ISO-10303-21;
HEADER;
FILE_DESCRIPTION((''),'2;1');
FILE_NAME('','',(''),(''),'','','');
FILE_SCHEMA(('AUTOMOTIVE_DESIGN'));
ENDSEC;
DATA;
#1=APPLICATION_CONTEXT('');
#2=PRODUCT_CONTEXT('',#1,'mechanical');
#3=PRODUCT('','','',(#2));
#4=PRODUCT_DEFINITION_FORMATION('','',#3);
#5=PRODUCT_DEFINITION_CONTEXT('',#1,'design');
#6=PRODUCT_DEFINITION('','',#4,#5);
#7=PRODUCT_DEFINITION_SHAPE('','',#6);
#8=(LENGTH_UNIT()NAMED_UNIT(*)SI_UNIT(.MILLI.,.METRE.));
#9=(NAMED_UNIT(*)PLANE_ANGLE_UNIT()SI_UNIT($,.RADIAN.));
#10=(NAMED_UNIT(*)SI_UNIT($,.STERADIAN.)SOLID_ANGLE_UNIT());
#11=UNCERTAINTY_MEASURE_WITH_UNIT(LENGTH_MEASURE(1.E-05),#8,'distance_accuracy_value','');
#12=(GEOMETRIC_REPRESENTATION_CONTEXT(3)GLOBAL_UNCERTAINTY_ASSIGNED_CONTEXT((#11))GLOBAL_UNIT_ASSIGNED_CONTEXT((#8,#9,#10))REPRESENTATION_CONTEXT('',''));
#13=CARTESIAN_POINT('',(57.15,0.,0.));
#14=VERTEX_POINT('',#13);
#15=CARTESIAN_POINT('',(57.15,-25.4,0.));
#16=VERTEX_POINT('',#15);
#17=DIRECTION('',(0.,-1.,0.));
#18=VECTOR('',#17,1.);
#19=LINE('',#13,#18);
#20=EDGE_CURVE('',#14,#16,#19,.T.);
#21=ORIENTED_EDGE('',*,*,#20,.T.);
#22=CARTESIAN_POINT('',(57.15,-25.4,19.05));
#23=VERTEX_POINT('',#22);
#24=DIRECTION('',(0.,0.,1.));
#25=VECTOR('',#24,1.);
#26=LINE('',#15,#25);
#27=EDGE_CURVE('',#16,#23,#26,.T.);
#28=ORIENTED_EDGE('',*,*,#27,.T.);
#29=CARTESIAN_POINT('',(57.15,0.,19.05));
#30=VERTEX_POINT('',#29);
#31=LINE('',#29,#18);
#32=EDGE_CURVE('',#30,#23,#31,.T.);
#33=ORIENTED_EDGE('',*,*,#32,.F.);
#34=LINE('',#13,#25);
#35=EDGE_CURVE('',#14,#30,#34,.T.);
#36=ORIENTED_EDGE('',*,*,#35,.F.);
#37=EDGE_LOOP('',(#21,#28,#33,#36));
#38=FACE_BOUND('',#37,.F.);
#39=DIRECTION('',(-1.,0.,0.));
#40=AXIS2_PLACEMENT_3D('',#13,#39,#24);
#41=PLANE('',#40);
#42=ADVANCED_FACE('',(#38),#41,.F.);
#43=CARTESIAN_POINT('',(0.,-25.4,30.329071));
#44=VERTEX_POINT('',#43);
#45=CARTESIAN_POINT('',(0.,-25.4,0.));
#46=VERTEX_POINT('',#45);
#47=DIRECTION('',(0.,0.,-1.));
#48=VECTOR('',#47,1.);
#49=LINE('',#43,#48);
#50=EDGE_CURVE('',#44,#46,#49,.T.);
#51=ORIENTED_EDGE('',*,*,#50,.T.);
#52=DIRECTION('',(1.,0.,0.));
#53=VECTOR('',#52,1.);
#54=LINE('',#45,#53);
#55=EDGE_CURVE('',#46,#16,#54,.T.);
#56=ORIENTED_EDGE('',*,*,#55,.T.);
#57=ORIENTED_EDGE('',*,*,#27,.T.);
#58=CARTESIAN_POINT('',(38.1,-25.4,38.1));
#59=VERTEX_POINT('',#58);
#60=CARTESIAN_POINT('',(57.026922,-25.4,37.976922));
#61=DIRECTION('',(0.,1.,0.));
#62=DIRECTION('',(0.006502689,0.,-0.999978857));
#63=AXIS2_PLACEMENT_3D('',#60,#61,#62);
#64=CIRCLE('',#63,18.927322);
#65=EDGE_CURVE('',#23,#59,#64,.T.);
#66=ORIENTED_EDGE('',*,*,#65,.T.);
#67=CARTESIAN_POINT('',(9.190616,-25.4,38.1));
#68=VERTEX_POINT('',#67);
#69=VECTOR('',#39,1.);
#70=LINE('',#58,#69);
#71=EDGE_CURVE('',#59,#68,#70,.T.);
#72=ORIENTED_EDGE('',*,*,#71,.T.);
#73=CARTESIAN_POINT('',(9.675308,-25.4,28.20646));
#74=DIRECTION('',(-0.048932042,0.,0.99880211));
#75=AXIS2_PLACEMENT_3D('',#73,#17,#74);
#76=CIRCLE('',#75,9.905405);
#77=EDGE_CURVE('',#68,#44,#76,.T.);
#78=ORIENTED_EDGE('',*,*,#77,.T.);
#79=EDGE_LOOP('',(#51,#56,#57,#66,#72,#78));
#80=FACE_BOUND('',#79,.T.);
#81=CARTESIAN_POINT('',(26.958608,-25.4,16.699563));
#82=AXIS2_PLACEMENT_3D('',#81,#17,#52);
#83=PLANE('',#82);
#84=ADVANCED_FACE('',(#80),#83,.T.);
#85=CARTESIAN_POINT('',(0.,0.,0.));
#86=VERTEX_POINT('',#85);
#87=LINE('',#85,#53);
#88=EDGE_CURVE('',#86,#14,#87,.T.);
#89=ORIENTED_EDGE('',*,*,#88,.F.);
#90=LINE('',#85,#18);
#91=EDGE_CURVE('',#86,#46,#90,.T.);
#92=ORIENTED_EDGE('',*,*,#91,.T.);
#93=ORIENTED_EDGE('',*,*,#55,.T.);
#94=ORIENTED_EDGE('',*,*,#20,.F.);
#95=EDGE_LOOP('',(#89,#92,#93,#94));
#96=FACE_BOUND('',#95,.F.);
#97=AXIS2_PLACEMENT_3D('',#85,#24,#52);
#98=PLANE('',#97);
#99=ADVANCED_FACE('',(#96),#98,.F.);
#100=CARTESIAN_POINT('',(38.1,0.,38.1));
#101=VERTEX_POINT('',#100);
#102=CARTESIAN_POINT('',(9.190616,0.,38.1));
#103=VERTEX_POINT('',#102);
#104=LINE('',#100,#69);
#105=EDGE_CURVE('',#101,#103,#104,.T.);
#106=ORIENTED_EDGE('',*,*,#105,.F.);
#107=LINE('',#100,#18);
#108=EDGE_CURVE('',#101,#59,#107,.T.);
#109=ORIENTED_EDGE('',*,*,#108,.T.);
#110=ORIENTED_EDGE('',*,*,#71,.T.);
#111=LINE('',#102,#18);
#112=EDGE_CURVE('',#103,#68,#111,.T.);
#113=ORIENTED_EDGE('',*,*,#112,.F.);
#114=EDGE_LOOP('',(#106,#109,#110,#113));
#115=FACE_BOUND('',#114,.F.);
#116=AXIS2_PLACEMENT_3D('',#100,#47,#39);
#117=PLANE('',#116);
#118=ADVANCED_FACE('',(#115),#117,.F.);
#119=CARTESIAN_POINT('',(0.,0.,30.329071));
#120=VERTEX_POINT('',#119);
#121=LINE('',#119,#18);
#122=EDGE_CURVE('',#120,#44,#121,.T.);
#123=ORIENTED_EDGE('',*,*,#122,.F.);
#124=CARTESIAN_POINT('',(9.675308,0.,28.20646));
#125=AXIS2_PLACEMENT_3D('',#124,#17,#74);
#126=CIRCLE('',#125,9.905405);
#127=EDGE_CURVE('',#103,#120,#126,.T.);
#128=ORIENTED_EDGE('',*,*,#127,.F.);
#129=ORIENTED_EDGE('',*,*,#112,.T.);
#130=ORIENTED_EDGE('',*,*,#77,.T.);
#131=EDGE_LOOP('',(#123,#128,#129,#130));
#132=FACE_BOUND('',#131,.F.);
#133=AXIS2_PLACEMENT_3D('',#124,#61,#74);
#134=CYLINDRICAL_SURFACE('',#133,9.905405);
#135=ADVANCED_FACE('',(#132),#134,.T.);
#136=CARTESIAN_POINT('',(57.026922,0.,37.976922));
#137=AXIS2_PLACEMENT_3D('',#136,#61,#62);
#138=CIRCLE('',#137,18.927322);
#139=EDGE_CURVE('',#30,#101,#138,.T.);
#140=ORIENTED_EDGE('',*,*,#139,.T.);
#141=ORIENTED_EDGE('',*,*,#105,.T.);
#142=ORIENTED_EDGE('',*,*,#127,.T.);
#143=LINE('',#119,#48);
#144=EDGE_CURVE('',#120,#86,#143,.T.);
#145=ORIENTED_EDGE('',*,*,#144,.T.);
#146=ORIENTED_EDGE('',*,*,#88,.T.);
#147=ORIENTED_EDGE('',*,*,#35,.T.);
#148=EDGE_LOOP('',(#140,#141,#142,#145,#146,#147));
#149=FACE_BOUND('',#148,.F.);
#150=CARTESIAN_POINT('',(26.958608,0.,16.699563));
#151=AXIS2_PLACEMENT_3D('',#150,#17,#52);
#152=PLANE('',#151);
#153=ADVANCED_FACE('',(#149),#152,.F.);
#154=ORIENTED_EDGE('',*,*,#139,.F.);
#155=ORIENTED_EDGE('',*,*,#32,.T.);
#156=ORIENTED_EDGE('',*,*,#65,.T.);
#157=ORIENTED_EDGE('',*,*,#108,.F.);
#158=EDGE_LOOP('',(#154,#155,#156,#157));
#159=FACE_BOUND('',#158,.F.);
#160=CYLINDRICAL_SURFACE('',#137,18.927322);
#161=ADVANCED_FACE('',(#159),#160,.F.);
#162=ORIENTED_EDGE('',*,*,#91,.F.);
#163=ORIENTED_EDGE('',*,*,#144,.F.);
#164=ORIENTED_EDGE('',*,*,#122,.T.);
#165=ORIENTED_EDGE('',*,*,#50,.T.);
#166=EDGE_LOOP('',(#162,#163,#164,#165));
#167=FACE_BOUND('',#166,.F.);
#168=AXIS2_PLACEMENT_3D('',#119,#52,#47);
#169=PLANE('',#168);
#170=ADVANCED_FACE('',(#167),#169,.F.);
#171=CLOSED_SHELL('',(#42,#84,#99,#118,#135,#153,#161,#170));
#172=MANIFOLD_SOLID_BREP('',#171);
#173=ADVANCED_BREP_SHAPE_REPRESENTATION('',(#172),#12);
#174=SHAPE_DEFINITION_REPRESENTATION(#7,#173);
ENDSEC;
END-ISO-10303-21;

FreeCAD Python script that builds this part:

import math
import FreeCAD as App
import Part
import Sketcher

V = App.Vector
Q = App.Units.Quantity

doc = App.newDocument("Part")
body = doc.addObject("PartDesign::Body", "Body")

# Sketch on XZ plane
sketch1 = body.newObject("Sketcher::SketchObject", "Sketch")
sketch1.AttachmentSupport = (doc.getObject("XZ_Plane"), [""])
sketch1.MapMode = "FlatFace"
sketch1.addGeometry([
    Part.LineSegment(V(0, 0, 0), V(57.15, 0, 0)),  # 0
    Part.LineSegment(V(57.15, 0, 0), V(57.15, 19.05, 0)),  # 1
    Part.ArcOfCircle(Part.Circle(V(57.026922, 37.976922, 0), V(0, 0, 1), 18.927322), math.radians(179.627421), math.radians(270.372579)),  # 2
    Part.LineSegment(V(38.1, 38.1, 0), V(9.190616, 38.1, 0)),  # 3
    Part.ArcOfCircle(Part.Circle(V(9.675308, 28.20646, 0), V(0, 0, 1), 9.905405), math.radians(92.804719), math.radians(167.626233)),  # 4
    Part.LineSegment(V(0, 30.329071, 0), V(0, 0, 0)),  # 5
], False)
sketch1.addConstraint([
    Sketcher.Constraint("Coincident", 0, 2, 1, 1),
    Sketcher.Constraint("Coincident", 1, 2, 2, 2),
    Sketcher.Constraint("Coincident", 2, 1, 3, 1),
    Sketcher.Constraint("Coincident", 3, 2, 4, 1),
    Sketcher.Constraint("Coincident", 4, 2, 5, 1),
    Sketcher.Constraint("Coincident", 5, 2, 0, 1),
    Sketcher.Constraint("Horizontal", 0),
    Sketcher.Constraint("Vertical", 1),
    Sketcher.Constraint("Horizontal", 3),
    Sketcher.Constraint("Vertical", 5),
    Sketcher.Constraint("Coincident", 5, 2, -1, 1),
    Sketcher.Constraint("DistanceX", 0, 1, 0, 2, Q("2.25 in")),
    Sketcher.Constraint("DistanceY", 1, 1, 1, 2, Q("0.75 in")),
    Sketcher.Constraint("DistanceX", -1, 1, 2, 1, Q("1.5 in")),
    Sketcher.Constraint("DistanceY", -1, 1, 2, 1, Q("1.5 in")),
    Sketcher.Constraint("Radius", 2, 18.927322),
    Sketcher.Constraint("Radius", 4, 9.905405),
    Sketcher.Constraint("DistanceY", 5, 2, 5, 1, 30.329071),
    Sketcher.Constraint("DistanceX", 3, 2, 3, 1, 28.909384),
])
pad1 = body.newObject("PartDesign::Pad", "Pad")
pad1.Profile = sketch1
pad1.Length = Q("1 in")

doc.recompute()
